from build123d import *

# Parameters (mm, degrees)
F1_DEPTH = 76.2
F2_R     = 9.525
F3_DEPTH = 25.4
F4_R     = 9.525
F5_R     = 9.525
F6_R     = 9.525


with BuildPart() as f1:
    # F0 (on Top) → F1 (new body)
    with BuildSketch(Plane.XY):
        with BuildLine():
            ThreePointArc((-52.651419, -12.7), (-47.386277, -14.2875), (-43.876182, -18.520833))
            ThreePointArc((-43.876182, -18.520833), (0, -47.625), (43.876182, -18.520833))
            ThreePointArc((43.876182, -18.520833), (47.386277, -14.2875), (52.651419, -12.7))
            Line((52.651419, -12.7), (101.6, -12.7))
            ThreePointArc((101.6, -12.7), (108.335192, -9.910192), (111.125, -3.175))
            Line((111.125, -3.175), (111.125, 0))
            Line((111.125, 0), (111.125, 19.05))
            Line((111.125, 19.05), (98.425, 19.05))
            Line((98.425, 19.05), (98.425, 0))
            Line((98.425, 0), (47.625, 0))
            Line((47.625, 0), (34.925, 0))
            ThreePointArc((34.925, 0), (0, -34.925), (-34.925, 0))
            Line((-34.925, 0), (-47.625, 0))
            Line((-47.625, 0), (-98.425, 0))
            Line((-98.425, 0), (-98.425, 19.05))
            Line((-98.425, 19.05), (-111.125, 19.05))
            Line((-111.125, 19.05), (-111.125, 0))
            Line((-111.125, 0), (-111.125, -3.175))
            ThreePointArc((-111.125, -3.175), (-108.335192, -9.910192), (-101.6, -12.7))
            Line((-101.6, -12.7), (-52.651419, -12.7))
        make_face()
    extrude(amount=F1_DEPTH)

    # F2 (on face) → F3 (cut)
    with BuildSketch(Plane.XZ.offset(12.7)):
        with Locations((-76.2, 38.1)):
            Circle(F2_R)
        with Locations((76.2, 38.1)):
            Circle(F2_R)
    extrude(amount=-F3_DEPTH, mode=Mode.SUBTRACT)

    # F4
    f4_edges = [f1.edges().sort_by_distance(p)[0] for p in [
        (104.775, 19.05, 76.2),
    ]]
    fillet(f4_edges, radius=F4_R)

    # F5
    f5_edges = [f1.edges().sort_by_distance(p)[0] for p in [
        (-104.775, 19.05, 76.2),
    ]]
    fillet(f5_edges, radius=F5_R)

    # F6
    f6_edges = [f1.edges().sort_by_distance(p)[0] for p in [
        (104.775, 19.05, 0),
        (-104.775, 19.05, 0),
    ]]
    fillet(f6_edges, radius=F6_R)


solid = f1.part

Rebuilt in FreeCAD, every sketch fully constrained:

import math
import FreeCAD as App
import Part
import Sketcher

V = App.Vector
Q = App.Units.Quantity


def edges_at(feature, points):
    """Names of the edges that pass closest to the given points."""
    edges = feature.Shape.Edges
    near = lambda p: min(range(len(edges)), key=lambda i: edges[i].distToShape(Part.Vertex(*p))[0])
    return sorted({f"Edge{near(p) + 1}" for p in points})

doc = App.newDocument("Part")
body = doc.addObject("PartDesign::Body", "Body")

sketch1 = doc.addObject("Sketcher::SketchObject", "Sketch")
body.addObject(sketch1)
sketch1.AttachmentSupport = (doc.XY_Plane, [""])
sketch1.MapMode = "FlatFace"
sketch1.addGeometry([
    Part.ArcOfCircle(Part.Circle(V(-53, -22, 0), V(0, 0, 1), 10), math.radians(23), math.radians(90)),
    Part.ArcOfCircle(Part.Circle(V(0, 0, 0), V(0, 0, 1), 48), math.radians(-157), math.radians(-23)),
    Part.ArcOfCircle(Part.Circle(V(53, -22, 0), V(0, 0, 1), 10), math.radians(90), math.radians(157)),
    Part.LineSegment(V(53, -13, 0), V(102, -13, 0)),
    Part.ArcOfCircle(Part.Circle(V(102, -3, 0), V(0, 0, 1), 10), math.radians(-90), math.radians(0)),
    Part.LineSegment(V(111, -3, 0), V(111, 19, 0)),
    Part.LineSegment(V(111, 19, 0), V(98, 19, 0)),
    Part.LineSegment(V(98, 19, 0), V(98, 0, 0)),
    Part.LineSegment(V(98, 0, 0), V(35, 0, 0)),
    Part.ArcOfCircle(Part.Circle(V(0, 0, 0), V(0, 0, 1), 35), math.radians(180), math.radians(360)),
    Part.LineSegment(V(-35, 0, 0), V(-98, 0, 0)),
    Part.LineSegment(V(-98, 0, 0), V(-98, 19, 0)),
    Part.LineSegment(V(-98, 19, 0), V(-111, 19, 0)),
    Part.LineSegment(V(-111, 19, 0), V(-111, -3, 0)),
    Part.ArcOfCircle(Part.Circle(V(-102, -3, 0), V(0, 0, 1), 10), math.radians(-180), math.radians(-90)),
    Part.LineSegment(V(-102, -13, 0), V(-53, -13, 0)),
], False)
sketch1.addConstraint([
    Sketcher.Constraint("Tangent", 0, 1, 1, 1),
    Sketcher.Constraint("Tangent", 1, 2, 2, 2),
    Sketcher.Constraint("Tangent", 2, 1, 3, 1),
    Sketcher.Constraint("Tangent", 3, 2, 4, 1),
    Sketcher.Constraint("Tangent", 4, 2, 5, 1),
    Sketcher.Constraint("Coincident", 5, 2, 6, 1),
    Sketcher.Constraint("Coincident", 6, 2, 7, 1),
    Sketcher.Constraint("Coincident", 7, 2, 8, 1),
    Sketcher.Constraint("Coincident", 8, 2, 9, 2),
    Sketcher.Constraint("Coincident", 9, 1, 10, 1),
    Sketcher.Constraint("Coincident", 10, 2, 11, 1),
    Sketcher.Constraint("Coincident", 11, 2, 12, 1),
    Sketcher.Constraint("Coincident", 12, 2, 13, 1),
    Sketcher.Constraint("Tangent", 13, 2, 14, 1),
    Sketcher.Constraint("Tangent", 14, 2, 15, 1),
    Sketcher.Constraint("Tangent", 15, 2, 0, 2),
    Sketcher.Constraint("Horizontal", 3),
    Sketcher.Constraint("Vertical", 5),
    Sketcher.Constraint("Horizontal", 6),
    Sketcher.Constraint("Vertical", 7),
    Sketcher.Constraint("Horizontal", 8),
    Sketcher.Constraint("Horizontal", 10),
    Sketcher.Constraint("Vertical", 11),
    Sketcher.Constraint("Horizontal", 12),
    Sketcher.Constraint("Vertical", 13),
    Sketcher.Constraint("Horizontal", 15),
    Sketcher.Constraint("Coincident", 1, 3, -1, 1),
    Sketcher.Constraint("Coincident", 9, 3, -1, 1),
    Sketcher.Constraint("Equal", 0, 2),
    Sketcher.Constraint("Equal", 2, 4),
    Sketcher.Constraint("Equal", 4, 14),
    Sketcher.Constraint("Symmetric", 7, 2, 10, 2, -1, 1),
    Sketcher.Constraint("Symmetric", 4, 3, 14, 3, -2),
    Sketcher.Constraint("PointOnObject", 7, 2, -1),
    Sketcher.Constraint("Horizontal", 6, 2, 11, 2),
    Sketcher.Constraint("DistanceX", 6, 2, 6, 1, Q("0.5 in")),
    Sketcher.Constraint("DistanceX", 8, 2, 8, 1, Q("2.5 in")),
    Sketcher.Constraint("DistanceX", -1, 1, 4, 3, Q("4 in")),
    Sketcher.Constraint("Radius", 0, Q("0.3750001 in")),
    Sketcher.Constraint("Radius", 1, Q("1.875 in")),
    Sketcher.Constraint("DistanceY", 7, 2, 7, 1, Q("0.75 in")),
    Sketcher.Constraint("DistanceY", 2, 1, -1, 1, Q("0.5 in")),
])
pad1 = doc.addObject("PartDesign::Pad", "Pad")
body.addObject(pad1)
pad1.Profile = sketch1
pad1.Length = Q("3 in")

sketch2 = doc.addObject("Sketcher::SketchObject", "Sketch001")
body.addObject(sketch2)
sketch2.AttachmentSupport = (doc.XZ_Plane, [""])
sketch2.MapMode = "FlatFace"
sketch2.AttachmentOffset = App.Placement(V(0, 0, 0.5 * 25.4), App.Rotation())
sketch2.addGeometry([
    Part.Circle(V(-76, 38, 0), V(0, 0, 1), 10),
    Part.Circle(V(76, 38, 0), V(0, 0, 1), 10),
], False)
sketch2.addConstraint([
    Sketcher.Constraint("Equal", 0, 1),
    Sketcher.Constraint("Symmetric", 0, 3, 1, 3, -2),
    Sketcher.Constraint("Diameter", 0, Q("0.75 in")),
    Sketcher.Constraint("DistanceX", 0, 3, -1, 1, Q("3 in")),
    Sketcher.Constraint("DistanceY", -1, 1, 0, 3, Q("1.5 in")),
])
pocket1 = doc.addObject("PartDesign::Pocket", "Pocket")
body.addObject(pocket1)
pocket1.Profile = sketch2
pocket1.Length = Q("1 in")
doc.recompute()

fillet = doc.addObject("PartDesign::Fillet", "Fillet")
body.addObject(fillet)
fillet.Base = (pocket1, edges_at(pocket1, [(104.775, 19.05, 76.2)]))
fillet.Radius = Q("0.375 in")
doc.recompute()

fillet2 = doc.addObject("PartDesign::Fillet", "Fillet001")
body.addObject(fillet2)
fillet2.Base = (fillet, edges_at(fillet, [(-104.775, 19.05, 76.2)]))
fillet2.Radius = Q("0.375 in")
doc.recompute()

fillet3 = doc.addObject("PartDesign::Fillet", "Fillet002")
body.addObject(fillet3)
fillet3.Base = (fillet2, edges_at(fillet2, [(104.775, 19.05, 0), (-104.775, 19.05, 0)]))
fillet3.Radius = Q("0.375 in")

doc.recompute()
